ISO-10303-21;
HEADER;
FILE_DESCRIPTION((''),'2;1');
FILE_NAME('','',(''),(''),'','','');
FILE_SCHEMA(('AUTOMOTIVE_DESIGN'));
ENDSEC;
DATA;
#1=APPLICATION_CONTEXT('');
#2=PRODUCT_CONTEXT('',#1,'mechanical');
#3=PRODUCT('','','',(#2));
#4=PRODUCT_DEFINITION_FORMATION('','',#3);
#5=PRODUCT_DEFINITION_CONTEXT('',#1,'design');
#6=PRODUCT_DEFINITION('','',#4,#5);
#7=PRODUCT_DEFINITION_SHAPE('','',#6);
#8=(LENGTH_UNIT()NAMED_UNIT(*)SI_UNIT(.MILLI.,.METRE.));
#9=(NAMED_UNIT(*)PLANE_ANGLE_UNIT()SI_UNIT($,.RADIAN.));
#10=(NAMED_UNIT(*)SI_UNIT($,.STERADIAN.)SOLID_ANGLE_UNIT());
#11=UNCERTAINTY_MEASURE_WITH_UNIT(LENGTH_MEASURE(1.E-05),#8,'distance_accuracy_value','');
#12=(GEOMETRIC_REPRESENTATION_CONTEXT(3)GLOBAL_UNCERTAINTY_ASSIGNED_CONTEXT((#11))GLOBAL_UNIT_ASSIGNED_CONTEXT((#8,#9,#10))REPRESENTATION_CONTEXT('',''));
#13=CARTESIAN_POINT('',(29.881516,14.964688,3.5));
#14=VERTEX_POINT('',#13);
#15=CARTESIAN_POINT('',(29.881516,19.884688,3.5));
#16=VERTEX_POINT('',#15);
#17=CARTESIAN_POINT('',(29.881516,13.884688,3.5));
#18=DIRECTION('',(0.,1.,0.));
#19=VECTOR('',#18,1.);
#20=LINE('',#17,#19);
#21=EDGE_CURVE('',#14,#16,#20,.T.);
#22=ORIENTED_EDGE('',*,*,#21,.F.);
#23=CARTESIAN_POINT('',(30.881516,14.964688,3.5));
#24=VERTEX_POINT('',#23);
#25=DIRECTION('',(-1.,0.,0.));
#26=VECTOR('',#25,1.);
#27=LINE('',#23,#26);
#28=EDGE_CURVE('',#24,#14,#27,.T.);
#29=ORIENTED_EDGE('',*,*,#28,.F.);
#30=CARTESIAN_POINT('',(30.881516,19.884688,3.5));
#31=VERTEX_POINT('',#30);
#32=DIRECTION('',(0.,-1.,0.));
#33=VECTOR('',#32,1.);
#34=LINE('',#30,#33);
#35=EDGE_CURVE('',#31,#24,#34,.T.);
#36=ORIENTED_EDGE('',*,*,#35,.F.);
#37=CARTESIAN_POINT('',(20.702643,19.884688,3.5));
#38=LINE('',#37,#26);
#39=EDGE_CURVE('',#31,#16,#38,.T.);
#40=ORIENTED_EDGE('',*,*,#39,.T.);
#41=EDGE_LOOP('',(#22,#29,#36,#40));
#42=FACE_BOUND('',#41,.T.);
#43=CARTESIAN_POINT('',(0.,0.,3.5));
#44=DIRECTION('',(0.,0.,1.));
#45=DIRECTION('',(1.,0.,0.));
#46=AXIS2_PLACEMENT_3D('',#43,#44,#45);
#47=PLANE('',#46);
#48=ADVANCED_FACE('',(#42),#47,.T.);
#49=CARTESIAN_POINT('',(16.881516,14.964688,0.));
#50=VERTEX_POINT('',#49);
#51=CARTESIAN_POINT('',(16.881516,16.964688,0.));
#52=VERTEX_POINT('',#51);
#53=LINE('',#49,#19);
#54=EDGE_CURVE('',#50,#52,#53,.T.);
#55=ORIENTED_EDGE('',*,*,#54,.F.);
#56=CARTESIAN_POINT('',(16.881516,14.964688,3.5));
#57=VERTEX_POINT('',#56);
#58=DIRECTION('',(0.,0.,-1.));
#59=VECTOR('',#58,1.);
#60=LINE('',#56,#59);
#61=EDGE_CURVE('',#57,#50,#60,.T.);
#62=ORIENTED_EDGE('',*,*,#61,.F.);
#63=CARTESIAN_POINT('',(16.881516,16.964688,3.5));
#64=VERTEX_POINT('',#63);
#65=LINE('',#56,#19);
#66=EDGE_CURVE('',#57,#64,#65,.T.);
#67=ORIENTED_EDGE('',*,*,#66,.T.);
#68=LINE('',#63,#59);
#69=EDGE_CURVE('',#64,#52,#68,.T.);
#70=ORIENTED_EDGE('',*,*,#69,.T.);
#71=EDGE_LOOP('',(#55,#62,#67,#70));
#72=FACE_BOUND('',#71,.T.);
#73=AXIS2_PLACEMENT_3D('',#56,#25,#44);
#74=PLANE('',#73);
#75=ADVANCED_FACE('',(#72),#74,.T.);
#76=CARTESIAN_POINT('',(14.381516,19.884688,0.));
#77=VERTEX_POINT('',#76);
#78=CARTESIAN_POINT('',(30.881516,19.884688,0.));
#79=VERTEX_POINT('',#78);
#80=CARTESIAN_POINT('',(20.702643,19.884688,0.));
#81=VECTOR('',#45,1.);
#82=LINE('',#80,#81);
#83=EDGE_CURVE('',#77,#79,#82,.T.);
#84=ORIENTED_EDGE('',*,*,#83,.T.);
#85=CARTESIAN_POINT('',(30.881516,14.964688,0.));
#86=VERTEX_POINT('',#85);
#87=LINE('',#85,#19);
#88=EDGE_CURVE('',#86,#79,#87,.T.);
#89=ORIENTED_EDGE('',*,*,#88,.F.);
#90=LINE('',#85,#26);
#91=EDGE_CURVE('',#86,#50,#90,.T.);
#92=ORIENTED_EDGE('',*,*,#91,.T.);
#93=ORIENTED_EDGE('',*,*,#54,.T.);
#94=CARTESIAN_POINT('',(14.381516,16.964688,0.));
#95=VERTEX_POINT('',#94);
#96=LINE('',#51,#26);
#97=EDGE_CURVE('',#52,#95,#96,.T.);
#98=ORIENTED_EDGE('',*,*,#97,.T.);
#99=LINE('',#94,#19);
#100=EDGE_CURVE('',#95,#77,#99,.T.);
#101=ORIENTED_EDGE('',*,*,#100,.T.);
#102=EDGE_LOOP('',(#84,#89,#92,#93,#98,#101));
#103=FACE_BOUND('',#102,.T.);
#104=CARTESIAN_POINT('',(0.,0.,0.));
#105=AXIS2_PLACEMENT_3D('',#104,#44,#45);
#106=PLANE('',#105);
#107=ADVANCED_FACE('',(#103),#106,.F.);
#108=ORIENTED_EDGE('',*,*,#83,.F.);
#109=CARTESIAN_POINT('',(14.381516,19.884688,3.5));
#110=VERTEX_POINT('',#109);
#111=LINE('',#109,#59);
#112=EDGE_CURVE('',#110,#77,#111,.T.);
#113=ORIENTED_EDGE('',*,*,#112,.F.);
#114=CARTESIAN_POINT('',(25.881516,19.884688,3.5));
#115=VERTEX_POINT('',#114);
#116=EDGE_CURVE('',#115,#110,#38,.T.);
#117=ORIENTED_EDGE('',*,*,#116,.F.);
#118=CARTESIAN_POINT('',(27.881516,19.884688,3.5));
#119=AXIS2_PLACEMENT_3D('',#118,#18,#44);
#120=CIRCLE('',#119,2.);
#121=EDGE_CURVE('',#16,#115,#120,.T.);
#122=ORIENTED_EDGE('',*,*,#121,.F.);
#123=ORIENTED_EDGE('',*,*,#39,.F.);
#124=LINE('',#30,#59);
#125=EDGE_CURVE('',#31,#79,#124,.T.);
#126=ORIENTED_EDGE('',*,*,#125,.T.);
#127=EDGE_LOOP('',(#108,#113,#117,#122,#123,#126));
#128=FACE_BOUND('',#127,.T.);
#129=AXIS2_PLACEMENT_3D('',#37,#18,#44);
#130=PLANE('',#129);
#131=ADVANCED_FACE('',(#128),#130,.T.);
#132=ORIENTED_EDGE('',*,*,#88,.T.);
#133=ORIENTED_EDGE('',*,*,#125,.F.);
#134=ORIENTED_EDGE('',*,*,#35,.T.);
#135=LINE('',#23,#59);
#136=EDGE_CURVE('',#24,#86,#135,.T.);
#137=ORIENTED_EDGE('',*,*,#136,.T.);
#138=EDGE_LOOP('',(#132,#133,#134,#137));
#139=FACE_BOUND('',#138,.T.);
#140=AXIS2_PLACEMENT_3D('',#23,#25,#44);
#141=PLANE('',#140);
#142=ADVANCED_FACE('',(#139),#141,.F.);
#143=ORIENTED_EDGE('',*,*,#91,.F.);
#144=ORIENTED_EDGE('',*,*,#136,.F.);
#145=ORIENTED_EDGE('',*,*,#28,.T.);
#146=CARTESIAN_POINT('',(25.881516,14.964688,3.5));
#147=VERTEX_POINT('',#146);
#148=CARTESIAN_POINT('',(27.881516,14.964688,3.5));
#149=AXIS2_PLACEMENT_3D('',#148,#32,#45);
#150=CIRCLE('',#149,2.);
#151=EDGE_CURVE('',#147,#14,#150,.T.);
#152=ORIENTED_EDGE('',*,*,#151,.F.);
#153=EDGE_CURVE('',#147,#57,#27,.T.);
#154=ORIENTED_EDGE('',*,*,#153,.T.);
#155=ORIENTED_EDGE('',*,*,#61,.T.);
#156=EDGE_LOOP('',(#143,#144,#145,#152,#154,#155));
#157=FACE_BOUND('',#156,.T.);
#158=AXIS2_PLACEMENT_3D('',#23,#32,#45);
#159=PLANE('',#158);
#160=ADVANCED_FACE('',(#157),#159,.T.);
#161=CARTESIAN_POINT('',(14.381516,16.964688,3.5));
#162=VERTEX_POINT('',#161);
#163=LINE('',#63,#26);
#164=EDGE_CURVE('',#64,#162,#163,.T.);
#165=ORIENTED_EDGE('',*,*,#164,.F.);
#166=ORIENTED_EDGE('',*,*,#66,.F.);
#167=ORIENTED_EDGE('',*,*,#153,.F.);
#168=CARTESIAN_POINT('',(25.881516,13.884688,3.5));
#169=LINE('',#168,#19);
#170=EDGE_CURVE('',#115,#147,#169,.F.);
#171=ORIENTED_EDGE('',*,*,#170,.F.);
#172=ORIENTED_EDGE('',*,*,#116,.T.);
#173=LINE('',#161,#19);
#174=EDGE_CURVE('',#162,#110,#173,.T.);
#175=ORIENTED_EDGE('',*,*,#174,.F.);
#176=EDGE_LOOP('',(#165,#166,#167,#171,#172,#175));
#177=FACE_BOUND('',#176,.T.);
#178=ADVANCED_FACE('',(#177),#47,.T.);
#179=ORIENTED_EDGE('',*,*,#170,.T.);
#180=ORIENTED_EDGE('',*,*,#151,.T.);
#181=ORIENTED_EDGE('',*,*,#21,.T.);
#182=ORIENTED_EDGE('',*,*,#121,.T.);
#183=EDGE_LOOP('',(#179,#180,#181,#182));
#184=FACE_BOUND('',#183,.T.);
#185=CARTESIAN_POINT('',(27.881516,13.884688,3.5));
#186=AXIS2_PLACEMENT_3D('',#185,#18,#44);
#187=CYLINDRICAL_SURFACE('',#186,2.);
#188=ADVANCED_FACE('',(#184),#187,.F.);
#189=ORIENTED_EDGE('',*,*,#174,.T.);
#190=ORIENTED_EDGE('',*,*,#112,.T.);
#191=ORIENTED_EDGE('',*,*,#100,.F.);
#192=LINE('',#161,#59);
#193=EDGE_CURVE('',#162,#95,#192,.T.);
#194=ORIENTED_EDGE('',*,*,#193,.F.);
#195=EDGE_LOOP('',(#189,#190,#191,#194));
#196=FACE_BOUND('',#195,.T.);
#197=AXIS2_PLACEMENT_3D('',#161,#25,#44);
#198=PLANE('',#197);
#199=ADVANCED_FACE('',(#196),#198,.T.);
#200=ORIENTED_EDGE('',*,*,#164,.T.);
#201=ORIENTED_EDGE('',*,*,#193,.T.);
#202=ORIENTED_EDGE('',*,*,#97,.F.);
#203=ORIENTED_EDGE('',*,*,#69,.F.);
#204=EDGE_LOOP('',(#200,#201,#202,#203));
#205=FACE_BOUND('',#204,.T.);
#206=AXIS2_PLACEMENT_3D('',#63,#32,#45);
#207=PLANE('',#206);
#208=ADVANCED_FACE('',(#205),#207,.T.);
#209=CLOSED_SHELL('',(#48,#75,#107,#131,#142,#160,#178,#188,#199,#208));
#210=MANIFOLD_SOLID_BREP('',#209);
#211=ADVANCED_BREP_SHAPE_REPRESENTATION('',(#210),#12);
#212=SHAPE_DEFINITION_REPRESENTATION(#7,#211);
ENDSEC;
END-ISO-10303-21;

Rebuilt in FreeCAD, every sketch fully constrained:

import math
import FreeCAD as App
import Part
import Sketcher
Q = App.Units.Quantity

doc = App.newDocument("Part")
body = doc.addObject("PartDesign::Body", "Body")

# Sketch on XY plane
sketch1 = body.newObject("Sketcher::SketchObject", "Sketch")
sketch1.AttachmentSupport = (doc.getObject("XY_Plane"), [""])
sketch1.MapMode = "FlatFace"
sketch1.addGeometry([
    Part.LineSegment(App.Vector(16.9, 15, 0), App.Vector(30.9, 15, 0)),  # 0
    Part.LineSegment(App.Vector(30.9, 15, 0), App.Vector(30.9, 19.9, 0)),  # 1
    Part.LineSegment(App.Vector(30.9, 19.9, 0), App.Vector(14.4, 19.9, 0)),  # 2
    Part.LineSegment(App.Vector(14.4, 19.9, 0), App.Vector(14.4, 17, 0)),  # 3
    Part.LineSegment(App.Vector(14.4, 17, 0), App.Vector(16.9, 17, 0)),  # 4
    Part.LineSegment(App.Vector(16.9, 17, 0), App.Vector(16.9, 15, 0)),  # 5
], False)
sketch1.addConstraint([
    Sketcher.Constraint("Coincident", 0, 2, 1, 1),
    Sketcher.Constraint("Coincident", 1, 2, 2, 1),
    Sketcher.Constraint("Coincident", 2, 2, 3, 1),
    Sketcher.Constraint("Coincident", 3, 2, 4, 1),
    Sketcher.Constraint("Coincident", 4, 2, 5, 1),
    Sketcher.Constraint("Coincident", 5, 2, 0, 1),
    Sketcher.Constraint("Horizontal", 0),
    Sketcher.Constraint("Vertical", 1),
    Sketcher.Constraint("Horizontal", 2),
    Sketcher.Constraint("Vertical", 3),
    Sketcher.Constraint("Horizontal", 4),
    Sketcher.Constraint("Vertical", 5),
    Sketcher.Constraint("DistanceX", 0, 1, 0, 2, Q("14 mm")),
    Sketcher.Constraint("DistanceY", 5, 2, 5, 1, Q("2 mm")),
    Sketcher.Constraint("DistanceX", 2, 2, 2, 1, Q("16.5 mm")),
    Sketcher.Constraint("DistanceY", 1, 1, 1, 2, Q("4.92 mm")),
    Sketcher.Constraint("DistanceX", -1, 1, 0, 2, Q("30.881516 mm")),
    Sketcher.Constraint("DistanceY", -1, 1, 0, 2, Q("14.964688 mm")),
])
pad1 = body.newObject("PartDesign::Pad", "Pad")
pad1.Profile = sketch1
pad1.Length = 3.5

# Sketch on XZ plane
sketch2 = body.newObject("Sketcher::SketchObject", "Sketch001")
sketch2.AttachmentSupport = (doc.getObject("XZ_Plane"), [""])
sketch2.MapMode = "FlatFace"
sketch2.AttachmentOffset = App.Placement(App.Vector(0, 0, -19.884688), App.Rotation())
sketch2.addGeometry([
    Part.ArcOfCircle(Part.Circle(App.Vector(27.9, 3.5, 0), App.Vector(0, 0, 1), 2), math.radians(180), math.radians(360)),
    Part.LineSegment(App.Vector(25.9, 3.5, 0), App.Vector(29.9, 3.5, 0)),
], False)
sketch2.addConstraint([
    Sketcher.Constraint("Coincident", 0, 1, 1, 1),
    Sketcher.Constraint("Coincident", 1, 2, 0, 2),
    Sketcher.Constraint("Horizontal", 1),
    Sketcher.Constraint("Radius", 0, Q("2 mm")),
    Sketcher.Constraint("DistanceY", -1, 1, 0, 3, Q("3.5 mm")),
    Sketcher.Constraint("DistanceY", -1, 1, 0, 1, Q("3.5 mm")),
    Sketcher.Constraint("DistanceX", -1, 1, 0, 3, Q("27.881516 mm")),
])
pocket1 = body.newObject("PartDesign::Pocket", "Pocket")
pocket1.Profile = sketch2
pocket1.Length = 6
pocket1.Reversed = True

doc.recompute()
